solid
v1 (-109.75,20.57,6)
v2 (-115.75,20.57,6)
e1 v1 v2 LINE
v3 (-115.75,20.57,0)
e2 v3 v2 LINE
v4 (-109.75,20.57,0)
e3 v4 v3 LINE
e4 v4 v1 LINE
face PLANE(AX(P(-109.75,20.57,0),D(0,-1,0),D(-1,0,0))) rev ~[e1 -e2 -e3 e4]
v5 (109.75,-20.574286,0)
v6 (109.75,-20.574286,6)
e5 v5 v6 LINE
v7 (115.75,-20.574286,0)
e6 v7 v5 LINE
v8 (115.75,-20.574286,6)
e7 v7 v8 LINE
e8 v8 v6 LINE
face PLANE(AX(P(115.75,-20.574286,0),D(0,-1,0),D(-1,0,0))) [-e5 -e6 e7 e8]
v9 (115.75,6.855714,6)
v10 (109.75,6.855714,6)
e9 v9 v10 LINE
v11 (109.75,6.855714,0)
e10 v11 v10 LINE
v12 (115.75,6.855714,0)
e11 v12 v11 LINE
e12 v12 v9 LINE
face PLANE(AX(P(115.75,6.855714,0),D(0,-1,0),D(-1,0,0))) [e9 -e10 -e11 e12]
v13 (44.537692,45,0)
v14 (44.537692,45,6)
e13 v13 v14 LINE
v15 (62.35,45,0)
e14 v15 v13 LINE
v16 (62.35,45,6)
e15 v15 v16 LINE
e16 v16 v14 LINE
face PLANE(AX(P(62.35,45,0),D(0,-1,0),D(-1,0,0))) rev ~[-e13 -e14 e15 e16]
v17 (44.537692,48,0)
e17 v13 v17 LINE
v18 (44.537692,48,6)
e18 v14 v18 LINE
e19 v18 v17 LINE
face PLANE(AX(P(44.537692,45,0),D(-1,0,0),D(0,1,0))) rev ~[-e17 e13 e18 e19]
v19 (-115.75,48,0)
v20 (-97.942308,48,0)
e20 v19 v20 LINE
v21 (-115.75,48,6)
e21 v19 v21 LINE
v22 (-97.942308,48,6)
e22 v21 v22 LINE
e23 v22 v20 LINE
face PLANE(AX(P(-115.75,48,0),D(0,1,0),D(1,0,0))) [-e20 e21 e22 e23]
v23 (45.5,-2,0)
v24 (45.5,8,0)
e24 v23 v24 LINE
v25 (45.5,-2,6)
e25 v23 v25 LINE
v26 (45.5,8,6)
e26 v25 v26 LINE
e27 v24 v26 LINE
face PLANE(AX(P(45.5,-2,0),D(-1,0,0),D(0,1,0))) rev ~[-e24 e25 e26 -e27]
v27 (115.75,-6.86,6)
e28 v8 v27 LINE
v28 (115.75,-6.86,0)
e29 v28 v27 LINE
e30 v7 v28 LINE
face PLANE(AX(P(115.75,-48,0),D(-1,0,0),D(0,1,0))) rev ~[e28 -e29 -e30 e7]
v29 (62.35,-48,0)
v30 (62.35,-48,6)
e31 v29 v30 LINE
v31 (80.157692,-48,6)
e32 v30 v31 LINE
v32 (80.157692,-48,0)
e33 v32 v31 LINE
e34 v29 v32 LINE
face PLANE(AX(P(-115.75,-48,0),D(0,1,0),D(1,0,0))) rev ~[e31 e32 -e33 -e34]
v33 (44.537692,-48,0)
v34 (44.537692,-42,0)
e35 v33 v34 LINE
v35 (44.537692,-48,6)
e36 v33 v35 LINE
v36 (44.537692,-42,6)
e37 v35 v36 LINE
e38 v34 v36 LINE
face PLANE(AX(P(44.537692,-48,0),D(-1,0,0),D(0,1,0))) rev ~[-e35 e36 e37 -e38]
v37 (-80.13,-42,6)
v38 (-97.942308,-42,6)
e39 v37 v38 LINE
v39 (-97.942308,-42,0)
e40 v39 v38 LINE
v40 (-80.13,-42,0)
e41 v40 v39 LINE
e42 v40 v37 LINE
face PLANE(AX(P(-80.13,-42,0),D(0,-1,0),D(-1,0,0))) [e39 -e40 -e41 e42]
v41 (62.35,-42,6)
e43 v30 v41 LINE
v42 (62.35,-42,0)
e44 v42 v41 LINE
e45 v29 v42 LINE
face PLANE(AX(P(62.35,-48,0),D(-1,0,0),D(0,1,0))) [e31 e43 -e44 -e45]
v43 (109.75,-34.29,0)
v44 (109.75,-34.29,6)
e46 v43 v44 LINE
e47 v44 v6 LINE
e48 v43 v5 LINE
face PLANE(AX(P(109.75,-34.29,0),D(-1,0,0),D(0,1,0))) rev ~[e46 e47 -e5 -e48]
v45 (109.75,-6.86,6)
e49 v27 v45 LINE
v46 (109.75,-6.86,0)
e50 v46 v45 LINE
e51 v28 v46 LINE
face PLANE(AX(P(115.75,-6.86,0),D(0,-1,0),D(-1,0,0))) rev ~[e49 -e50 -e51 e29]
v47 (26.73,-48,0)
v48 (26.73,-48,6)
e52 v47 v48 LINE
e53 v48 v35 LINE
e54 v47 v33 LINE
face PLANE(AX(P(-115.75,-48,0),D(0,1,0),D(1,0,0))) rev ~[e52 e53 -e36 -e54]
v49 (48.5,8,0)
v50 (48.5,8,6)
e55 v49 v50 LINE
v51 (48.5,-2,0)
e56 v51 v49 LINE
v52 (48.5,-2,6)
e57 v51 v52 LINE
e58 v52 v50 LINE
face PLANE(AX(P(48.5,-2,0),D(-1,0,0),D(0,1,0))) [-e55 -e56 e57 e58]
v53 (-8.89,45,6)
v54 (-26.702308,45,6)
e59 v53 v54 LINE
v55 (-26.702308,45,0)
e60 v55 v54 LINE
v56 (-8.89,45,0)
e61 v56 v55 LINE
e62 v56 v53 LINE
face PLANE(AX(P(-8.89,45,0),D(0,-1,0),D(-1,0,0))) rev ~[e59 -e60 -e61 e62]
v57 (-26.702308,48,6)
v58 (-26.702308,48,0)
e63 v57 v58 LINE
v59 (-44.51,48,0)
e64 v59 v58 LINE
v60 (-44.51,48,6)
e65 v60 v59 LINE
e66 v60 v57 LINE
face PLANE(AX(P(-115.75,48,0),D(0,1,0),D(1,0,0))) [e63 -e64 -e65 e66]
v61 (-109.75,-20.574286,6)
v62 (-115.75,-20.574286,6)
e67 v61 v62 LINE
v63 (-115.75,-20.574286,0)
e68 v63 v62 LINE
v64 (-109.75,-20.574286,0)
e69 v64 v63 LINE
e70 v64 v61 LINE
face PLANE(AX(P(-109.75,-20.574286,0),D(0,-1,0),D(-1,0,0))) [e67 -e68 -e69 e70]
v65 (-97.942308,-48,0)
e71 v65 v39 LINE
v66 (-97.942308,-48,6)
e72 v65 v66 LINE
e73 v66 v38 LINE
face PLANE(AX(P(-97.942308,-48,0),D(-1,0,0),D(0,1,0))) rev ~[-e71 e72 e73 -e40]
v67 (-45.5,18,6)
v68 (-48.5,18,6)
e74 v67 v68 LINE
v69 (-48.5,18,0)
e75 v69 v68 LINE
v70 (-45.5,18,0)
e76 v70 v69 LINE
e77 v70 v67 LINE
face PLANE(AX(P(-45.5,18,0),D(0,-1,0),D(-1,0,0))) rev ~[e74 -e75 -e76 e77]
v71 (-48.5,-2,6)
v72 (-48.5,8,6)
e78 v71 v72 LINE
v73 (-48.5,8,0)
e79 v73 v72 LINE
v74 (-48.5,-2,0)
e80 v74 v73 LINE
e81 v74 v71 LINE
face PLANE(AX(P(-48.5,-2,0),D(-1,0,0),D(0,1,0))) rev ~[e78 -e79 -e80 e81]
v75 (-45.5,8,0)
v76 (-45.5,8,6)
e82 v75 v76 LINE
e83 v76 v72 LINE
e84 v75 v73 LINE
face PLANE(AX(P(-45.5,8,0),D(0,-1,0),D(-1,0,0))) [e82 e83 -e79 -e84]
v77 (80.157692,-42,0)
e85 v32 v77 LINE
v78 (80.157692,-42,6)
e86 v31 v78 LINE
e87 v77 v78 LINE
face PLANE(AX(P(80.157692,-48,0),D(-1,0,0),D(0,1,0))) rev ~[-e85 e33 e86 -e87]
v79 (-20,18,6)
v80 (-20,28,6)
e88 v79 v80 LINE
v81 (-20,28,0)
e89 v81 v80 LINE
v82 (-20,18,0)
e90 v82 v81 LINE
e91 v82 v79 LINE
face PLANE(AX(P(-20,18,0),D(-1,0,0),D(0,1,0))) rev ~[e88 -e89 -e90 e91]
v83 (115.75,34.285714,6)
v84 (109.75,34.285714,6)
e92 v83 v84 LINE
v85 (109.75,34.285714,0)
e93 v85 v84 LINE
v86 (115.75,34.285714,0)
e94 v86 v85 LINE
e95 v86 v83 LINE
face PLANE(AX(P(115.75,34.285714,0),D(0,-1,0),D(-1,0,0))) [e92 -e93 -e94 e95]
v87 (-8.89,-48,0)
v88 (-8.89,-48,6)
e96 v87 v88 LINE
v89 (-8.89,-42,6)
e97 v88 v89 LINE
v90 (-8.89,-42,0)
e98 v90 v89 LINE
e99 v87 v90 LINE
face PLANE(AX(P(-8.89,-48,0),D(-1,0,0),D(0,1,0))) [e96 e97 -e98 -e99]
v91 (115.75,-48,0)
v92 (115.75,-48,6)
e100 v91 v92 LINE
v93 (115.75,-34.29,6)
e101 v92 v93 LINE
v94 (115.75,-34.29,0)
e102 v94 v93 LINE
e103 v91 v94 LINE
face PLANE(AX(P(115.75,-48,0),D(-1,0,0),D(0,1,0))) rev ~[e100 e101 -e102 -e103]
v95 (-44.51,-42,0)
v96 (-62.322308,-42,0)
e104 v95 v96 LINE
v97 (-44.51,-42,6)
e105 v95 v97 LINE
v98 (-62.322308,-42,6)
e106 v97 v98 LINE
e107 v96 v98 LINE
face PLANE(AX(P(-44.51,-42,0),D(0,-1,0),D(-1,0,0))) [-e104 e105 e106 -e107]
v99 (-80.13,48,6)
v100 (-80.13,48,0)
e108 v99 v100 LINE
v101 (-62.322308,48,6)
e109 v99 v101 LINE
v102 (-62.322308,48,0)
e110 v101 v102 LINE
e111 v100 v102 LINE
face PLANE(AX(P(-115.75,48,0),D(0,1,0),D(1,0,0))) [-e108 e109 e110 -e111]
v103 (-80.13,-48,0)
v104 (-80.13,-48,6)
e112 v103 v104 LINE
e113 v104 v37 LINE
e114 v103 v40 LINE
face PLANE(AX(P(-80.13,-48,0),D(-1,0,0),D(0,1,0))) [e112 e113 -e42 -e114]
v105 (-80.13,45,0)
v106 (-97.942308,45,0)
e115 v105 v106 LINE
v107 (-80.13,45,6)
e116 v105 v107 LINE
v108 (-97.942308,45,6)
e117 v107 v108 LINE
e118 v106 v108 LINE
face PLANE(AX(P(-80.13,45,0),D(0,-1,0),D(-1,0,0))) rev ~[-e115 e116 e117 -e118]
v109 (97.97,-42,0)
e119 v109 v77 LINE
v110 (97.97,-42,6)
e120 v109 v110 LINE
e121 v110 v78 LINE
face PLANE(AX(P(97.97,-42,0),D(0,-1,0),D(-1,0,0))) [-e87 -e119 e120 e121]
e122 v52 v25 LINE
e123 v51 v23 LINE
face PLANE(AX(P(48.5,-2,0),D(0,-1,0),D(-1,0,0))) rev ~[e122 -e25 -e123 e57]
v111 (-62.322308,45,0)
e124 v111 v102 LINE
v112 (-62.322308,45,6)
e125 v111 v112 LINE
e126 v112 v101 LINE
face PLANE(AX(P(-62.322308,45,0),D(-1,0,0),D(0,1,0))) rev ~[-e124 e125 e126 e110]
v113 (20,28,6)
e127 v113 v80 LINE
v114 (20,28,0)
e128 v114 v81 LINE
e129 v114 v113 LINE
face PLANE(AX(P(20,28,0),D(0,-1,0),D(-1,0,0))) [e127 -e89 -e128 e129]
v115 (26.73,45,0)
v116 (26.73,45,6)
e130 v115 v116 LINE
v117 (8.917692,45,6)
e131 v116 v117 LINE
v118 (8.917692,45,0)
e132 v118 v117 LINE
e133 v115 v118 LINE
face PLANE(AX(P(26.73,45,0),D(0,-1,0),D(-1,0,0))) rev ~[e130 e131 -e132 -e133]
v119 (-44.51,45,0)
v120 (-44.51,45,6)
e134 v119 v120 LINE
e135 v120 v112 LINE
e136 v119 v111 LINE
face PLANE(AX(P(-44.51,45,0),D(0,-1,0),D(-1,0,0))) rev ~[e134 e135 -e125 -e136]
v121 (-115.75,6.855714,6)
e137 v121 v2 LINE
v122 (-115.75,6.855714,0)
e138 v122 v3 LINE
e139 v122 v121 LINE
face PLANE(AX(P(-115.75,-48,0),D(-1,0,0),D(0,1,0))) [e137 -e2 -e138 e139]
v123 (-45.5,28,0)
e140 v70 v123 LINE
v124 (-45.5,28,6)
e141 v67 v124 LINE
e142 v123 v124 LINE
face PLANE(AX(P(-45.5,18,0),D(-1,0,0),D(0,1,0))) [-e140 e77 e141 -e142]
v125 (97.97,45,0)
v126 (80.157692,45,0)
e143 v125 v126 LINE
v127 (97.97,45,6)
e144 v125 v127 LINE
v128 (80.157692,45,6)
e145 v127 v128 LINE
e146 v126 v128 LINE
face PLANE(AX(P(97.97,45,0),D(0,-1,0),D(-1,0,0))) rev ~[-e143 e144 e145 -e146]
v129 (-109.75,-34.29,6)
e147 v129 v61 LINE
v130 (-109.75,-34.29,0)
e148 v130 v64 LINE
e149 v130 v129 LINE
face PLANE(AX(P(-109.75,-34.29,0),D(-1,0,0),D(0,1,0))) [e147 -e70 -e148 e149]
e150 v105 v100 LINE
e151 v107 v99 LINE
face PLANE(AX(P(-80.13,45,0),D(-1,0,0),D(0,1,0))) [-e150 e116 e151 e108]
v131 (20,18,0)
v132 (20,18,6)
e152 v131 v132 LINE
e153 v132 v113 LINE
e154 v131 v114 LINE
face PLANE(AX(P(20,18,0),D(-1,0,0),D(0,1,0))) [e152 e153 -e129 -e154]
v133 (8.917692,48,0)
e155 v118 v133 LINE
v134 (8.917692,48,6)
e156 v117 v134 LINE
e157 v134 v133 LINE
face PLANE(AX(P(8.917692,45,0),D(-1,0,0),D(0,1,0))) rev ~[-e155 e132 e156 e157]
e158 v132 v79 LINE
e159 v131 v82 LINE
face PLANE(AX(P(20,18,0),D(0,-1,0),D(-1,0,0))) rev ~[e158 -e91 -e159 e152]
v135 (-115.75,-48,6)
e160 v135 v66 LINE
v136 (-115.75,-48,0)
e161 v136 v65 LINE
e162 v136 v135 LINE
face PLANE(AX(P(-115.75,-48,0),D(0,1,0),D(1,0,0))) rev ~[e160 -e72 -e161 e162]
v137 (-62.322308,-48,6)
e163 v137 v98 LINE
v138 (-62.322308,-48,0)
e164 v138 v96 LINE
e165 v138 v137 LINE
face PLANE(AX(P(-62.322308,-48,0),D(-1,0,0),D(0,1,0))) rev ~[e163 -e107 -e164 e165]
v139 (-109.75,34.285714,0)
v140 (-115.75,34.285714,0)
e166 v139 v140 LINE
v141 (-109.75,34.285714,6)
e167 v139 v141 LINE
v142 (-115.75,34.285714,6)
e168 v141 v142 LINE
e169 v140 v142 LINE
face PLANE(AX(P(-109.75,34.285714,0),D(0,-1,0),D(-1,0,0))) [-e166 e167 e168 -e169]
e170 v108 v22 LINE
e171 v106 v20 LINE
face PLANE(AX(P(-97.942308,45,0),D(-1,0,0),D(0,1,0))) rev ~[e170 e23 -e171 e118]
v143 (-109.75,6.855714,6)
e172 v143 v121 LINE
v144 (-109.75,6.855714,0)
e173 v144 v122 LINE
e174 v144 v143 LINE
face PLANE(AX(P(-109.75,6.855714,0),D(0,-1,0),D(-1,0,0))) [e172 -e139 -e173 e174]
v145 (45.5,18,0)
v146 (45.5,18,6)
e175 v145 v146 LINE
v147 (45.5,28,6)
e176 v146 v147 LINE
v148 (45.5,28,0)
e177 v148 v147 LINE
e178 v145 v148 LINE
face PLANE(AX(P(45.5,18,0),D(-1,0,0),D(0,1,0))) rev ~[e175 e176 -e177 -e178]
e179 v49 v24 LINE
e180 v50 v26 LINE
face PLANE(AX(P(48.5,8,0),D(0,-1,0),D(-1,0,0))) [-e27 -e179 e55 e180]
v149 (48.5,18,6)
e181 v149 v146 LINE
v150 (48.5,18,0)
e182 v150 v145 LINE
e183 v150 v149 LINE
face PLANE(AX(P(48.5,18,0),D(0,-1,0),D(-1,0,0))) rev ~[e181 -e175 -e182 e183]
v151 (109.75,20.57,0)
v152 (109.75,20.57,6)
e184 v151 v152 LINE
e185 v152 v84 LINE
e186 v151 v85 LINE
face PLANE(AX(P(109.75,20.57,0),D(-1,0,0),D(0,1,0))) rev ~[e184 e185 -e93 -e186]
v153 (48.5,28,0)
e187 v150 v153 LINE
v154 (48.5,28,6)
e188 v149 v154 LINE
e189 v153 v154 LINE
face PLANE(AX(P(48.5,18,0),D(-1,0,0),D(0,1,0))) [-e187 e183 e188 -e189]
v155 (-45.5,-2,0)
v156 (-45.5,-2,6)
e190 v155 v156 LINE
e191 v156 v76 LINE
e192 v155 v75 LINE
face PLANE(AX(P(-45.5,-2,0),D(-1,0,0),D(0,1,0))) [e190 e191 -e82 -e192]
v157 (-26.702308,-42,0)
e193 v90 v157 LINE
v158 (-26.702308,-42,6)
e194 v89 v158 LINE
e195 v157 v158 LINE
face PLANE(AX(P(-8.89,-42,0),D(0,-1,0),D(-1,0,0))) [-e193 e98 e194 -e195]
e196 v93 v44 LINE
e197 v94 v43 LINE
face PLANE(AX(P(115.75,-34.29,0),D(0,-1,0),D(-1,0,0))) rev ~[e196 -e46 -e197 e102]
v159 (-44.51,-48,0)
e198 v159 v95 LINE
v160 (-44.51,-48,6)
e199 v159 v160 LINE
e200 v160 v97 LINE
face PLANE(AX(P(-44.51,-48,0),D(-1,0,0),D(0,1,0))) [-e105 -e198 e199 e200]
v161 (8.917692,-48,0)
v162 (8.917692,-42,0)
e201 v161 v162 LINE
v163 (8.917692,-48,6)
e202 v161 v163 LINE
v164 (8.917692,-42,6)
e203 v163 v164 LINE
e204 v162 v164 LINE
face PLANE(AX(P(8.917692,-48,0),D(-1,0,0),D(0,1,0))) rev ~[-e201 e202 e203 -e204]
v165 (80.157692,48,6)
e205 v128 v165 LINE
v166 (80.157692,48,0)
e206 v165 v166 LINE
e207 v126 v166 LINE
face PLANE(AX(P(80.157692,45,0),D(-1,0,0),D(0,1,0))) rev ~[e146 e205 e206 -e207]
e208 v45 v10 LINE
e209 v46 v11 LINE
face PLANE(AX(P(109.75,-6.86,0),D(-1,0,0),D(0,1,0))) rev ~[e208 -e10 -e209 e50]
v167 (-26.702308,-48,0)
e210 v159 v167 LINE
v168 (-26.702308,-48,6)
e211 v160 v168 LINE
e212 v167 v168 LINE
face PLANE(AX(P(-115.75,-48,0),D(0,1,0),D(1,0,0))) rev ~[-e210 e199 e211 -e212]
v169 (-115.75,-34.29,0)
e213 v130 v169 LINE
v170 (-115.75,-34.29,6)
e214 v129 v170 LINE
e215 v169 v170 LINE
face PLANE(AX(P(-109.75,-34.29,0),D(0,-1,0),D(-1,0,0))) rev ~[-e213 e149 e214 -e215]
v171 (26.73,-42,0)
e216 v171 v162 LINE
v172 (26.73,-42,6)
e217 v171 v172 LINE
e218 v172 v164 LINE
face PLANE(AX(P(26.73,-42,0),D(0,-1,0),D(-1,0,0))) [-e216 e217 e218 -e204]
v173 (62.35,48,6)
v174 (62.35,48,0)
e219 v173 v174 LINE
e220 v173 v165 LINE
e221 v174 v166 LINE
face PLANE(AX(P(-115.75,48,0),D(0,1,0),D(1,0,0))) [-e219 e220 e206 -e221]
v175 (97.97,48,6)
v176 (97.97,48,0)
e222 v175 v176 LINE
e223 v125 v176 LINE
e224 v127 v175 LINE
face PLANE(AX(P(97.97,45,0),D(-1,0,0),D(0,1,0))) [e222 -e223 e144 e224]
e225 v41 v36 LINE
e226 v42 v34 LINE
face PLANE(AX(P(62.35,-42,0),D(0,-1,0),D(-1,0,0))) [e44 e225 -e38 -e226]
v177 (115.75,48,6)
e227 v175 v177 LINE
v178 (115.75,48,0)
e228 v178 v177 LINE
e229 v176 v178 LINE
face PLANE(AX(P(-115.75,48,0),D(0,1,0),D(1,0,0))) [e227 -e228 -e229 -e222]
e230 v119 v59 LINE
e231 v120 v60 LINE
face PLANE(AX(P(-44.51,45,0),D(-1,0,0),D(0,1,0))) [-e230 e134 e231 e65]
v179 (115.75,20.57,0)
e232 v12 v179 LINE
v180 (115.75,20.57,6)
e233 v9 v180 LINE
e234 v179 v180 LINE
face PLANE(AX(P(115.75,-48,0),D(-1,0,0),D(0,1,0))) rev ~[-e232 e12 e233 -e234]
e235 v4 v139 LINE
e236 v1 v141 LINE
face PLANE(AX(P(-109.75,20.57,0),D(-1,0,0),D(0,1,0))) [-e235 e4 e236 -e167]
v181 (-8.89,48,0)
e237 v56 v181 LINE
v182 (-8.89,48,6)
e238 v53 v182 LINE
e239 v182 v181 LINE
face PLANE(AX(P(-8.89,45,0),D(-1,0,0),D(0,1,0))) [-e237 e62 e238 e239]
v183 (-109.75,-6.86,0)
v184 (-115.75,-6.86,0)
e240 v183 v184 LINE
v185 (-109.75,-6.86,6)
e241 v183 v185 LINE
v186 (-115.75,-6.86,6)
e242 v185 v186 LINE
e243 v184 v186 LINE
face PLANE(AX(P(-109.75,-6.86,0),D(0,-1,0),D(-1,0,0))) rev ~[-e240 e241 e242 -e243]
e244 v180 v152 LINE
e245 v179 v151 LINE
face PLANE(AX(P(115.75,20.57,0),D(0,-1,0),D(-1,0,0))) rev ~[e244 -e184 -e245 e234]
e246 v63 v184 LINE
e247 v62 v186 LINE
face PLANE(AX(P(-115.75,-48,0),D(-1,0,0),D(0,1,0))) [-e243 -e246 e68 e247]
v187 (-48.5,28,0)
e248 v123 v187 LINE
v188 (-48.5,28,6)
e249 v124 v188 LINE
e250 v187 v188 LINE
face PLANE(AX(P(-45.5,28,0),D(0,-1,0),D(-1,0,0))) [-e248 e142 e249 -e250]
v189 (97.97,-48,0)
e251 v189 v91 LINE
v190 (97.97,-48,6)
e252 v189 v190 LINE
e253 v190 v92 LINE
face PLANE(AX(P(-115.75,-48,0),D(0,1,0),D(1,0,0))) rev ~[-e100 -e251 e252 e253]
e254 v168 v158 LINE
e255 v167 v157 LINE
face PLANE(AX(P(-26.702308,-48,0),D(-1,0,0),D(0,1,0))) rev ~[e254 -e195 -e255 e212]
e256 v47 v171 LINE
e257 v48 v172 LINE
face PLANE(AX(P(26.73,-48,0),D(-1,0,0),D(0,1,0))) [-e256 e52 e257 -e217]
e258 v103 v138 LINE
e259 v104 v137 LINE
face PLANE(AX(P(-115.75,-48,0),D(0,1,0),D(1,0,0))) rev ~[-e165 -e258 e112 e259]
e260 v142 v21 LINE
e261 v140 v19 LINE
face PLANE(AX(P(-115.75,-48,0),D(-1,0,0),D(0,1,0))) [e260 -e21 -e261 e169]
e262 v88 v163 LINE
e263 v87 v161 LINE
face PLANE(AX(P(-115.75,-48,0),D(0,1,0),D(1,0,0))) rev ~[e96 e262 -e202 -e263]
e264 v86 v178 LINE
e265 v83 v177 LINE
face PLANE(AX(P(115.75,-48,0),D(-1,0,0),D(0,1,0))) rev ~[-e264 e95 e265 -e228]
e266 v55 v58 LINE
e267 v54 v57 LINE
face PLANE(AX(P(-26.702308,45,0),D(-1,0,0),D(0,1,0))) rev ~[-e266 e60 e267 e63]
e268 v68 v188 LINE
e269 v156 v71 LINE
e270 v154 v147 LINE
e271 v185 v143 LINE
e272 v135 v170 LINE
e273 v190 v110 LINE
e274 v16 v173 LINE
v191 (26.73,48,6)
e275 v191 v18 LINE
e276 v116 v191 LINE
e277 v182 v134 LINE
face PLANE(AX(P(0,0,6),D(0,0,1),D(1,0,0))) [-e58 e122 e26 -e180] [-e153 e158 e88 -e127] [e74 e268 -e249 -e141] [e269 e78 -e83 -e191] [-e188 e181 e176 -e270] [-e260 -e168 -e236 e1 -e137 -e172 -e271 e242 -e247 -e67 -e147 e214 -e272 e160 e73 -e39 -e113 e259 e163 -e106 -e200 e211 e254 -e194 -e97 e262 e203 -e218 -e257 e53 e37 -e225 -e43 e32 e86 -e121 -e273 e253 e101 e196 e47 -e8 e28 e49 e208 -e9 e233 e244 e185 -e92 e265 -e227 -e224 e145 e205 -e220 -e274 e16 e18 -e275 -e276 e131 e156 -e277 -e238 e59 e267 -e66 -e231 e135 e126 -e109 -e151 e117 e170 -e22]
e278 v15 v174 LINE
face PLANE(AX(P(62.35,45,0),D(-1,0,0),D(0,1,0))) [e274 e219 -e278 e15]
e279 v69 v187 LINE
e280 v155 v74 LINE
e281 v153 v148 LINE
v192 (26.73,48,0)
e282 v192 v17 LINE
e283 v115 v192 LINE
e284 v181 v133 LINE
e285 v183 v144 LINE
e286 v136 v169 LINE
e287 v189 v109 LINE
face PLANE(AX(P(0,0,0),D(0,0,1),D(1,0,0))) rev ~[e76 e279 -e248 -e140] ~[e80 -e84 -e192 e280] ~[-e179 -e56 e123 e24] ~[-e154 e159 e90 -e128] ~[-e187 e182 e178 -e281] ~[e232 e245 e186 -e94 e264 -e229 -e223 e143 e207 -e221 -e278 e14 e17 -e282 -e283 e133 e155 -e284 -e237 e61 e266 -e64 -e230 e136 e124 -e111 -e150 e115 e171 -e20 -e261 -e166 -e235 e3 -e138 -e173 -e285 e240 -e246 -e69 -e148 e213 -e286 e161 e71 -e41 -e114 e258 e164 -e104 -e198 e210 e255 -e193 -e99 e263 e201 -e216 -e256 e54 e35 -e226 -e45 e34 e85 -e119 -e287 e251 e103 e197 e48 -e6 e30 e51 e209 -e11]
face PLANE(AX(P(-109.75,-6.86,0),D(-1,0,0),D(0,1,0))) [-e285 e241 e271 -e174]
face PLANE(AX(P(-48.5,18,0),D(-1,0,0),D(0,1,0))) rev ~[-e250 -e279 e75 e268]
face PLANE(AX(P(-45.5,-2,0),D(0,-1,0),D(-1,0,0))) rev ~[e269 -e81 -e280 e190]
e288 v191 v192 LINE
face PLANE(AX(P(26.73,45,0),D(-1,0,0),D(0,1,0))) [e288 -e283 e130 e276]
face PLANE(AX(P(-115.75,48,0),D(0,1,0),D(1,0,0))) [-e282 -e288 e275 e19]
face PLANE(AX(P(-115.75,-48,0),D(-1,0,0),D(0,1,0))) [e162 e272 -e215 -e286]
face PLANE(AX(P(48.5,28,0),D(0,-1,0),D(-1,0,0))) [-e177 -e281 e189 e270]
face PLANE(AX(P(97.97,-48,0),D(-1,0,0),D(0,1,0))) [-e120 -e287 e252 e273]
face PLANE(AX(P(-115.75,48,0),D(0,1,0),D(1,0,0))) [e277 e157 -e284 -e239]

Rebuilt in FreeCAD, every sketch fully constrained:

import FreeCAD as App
import Part
import Sketcher

V = App.Vector

doc = App.newDocument("Part")
params = doc.addObject("Spreadsheet::Sheet", "Params")
for row, (alias, value) in enumerate([
    ("sketch1_height", "96 mm"),
    ("sketch1_width", "231.5 mm"),
    ("pad1_length", "6 mm"),
    ("sketch2_height", "6 mm"),
    ("sketch3_height", "6 mm"),
    ("sketch4_height", "6 mm"),
    ("sketch5_height", "6 mm"),
    ("sketch6_height", "6 mm"),
    ("sketch7_height", "6 mm"),
    ("sketch8_height", "6 mm"),
    ("sketch9_height", "6 mm"),
    ("sketch10_height", "6 mm"),
    ("sketch11_height", "6 mm"),
    ("sketch12_height", "6 mm"),
    ("sketch13_height", "6 mm"),
    ("sketch14_width", "6 mm"),
    ("sketch15_width", "6 mm"),
    ("sketch16_width", "6 mm"),
    ("sketch17_width", "6 mm"),
    ("sketch18_width", "6 mm"),
    ("sketch19_width", "6 mm"),
    ("sketch20_width", "40 mm"),
    ("sketch20_height", "10 mm"),
    ("sketch21_width", "3 mm"),
    ("sketch21_height", "10 mm"),
    ("sketch22_width", "3 mm"),
    ("sketch22_height", "10 mm"),
    ("sketch23_width", "3 mm"),
    ("sketch23_height", "10 mm"),
    ("sketch24_width", "3 mm"),
    ("sketch24_height", "10 mm"),
], start=1):
    params.set(f"A{row}", alias)
    params.set(f"B{row}", "=" + value)
    params.setAlias(f"B{row}", alias)

body = doc.addObject("PartDesign::Body", "Body")

sketch1 = body.newObject("Sketcher::SketchObject", "Sketch")
sketch1.AttachmentSupport = (doc.getObject("XY_Plane"), [""])
sketch1.MapMode = "FlatFace"
sketch1.addGeometry([
    Part.LineSegment(V(-115.75, 48, 0), V(-115.75, -48, 0)),
    Part.LineSegment(V(-115.75, -48, 0), V(115.75, -48, 0)),
    Part.LineSegment(V(115.75, -48, 0), V(115.75, 48, 0)),
    Part.LineSegment(V(115.75, 48, 0), V(-115.75, 48, 0)),
], False)
sketch1.addConstraint([
    Sketcher.Constraint("Coincident", 0, 2, 1, 1),
    Sketcher.Constraint("Coincident", 1, 2, 2, 1),
    Sketcher.Constraint("Coincident", 2, 2, 3, 1),
    Sketcher.Constraint("Coincident", 3, 2, 0, 1),
    Sketcher.Constraint("Vertical", 0),
    Sketcher.Constraint("Horizontal", 1),
    Sketcher.Constraint("Vertical", 2),
    Sketcher.Constraint("Horizontal", 3),
    Sketcher.Constraint("Symmetric", 0, 2, 2, 2, -1, 1),
    Sketcher.Constraint("DistanceY", 0, 2, 0, 1, 96.0),
    Sketcher.Constraint("DistanceX", 1, 1, 1, 2, 231.5),
])
sketch1.setExpression("Constraints[9]", "Params.sketch1_height")
sketch1.setExpression("Constraints[10]", "Params.sketch1_width")
pad1 = body.newObject("PartDesign::Pad", "Pad")
pad1.Profile = sketch1
pad1.setExpression("Length", "Params.pad1_length")

sketch2 = body.newObject("Sketcher::SketchObject", "Sketch001")
sketch2.AttachmentSupport = (doc.getObject("XY_Plane"), [""])
sketch2.MapMode = "FlatFace"
sketch2.addGeometry([
    Part.LineSegment(V(-8.89, -42, 0), V(-8.89, -48, 0)),
    Part.LineSegment(V(-8.89, -48, 0), V(-26.702308, -48, 0)),
    Part.LineSegment(V(-26.702308, -48, 0), V(-26.702308, -42, 0)),
    Part.LineSegment(V(-26.702308, -42, 0), V(-8.89, -42, 0)),
], False)
sketch2.addConstraint([
    Sketcher.Constraint("Coincident", 0, 2, 1, 1),
    Sketcher.Constraint("Coincident", 1, 2, 2, 1),
    Sketcher.Constraint("Coincident", 2, 2, 3, 1),
    Sketcher.Constraint("Coincident", 3, 2, 0, 1),
    Sketcher.Constraint("Vertical", 0),
    Sketcher.Constraint("Horizontal", 1),
    Sketcher.Constraint("Vertical", 2),
    Sketcher.Constraint("Horizontal", 3),
    Sketcher.Constraint("DistanceY", 0, 2, 0, 1, 6.0),
    Sketcher.Constraint("DistanceY", 0, 2, -1, 1, 48.0),
    Sketcher.Constraint("DistanceX", 0, 2, -1, 1, 8.89),
    Sketcher.Constraint("DistanceX", 1, 2, 1, 1, 17.812308),
])
sketch2.setExpression("Constraints[8]", "Params.sketch2_height")
pocket1 = body.newObject("PartDesign::Pocket", "Pocket")
pocket1.Profile = sketch2
pocket1.Type = "UpToFirst"
pocket1.Reversed = True

sketch3 = body.newObject("Sketcher::SketchObject", "Sketch002")
sketch3.AttachmentSupport = (doc.getObject("XY_Plane"), [""])
sketch3.MapMode = "FlatFace"
sketch3.addGeometry([
    Part.LineSegment(V(-44.51, -42, 0), V(-44.51, -48, 0)),
    Part.LineSegment(V(-44.51, -48, 0), V(-62.322308, -48, 0)),
    Part.LineSegment(V(-62.322308, -48, 0), V(-62.322308, -42, 0)),
    Part.LineSegment(V(-62.322308, -42, 0), V(-44.51, -42, 0)),
], False)
sketch3.addConstraint([
    Sketcher.Constraint("Coincident", 0, 2, 1, 1),
    Sketcher.Constraint("Coincident", 1, 2, 2, 1),
    Sketcher.Constraint("Coincident", 2, 2, 3, 1),
    Sketcher.Constraint("Coincident", 3, 2, 0, 1),
    Sketcher.Constraint("Vertical", 0),
    Sketcher.Constraint("Horizontal", 1),
    Sketcher.Constraint("Vertical", 2),
    Sketcher.Constraint("Horizontal", 3),
    Sketcher.Constraint("DistanceY", 0, 2, 0, 1, 6.0),
    Sketcher.Constraint("DistanceY", 0, 2, -1, 1, 48.0),
    Sketcher.Constraint("DistanceX", 0, 2, -1, 1, 44.51),
    Sketcher.Constraint("DistanceX", 1, 2, 1, 1, 17.812308),
])
sketch3.setExpression("Constraints[8]", "Params.sketch3_height")
pocket2 = body.newObject("PartDesign::Pocket", "Pocket001")
pocket2.Profile = sketch3
pocket2.Type = "UpToFirst"
pocket2.Reversed = True

sketch4 = body.newObject("Sketcher::SketchObject", "Sketch003")
sketch4.AttachmentSupport = (doc.getObject("XY_Plane"), [""])
sketch4.MapMode = "FlatFace"
sketch4.addGeometry([
    Part.LineSegment(V(-80.13, -42, 0), V(-80.13, -48, 0)),
    Part.LineSegment(V(-80.13, -48, 0), V(-97.942308, -48, 0)),
    Part.LineSegment(V(-97.942308, -48, 0), V(-97.942308, -42, 0)),
    Part.LineSegment(V(-97.942308, -42, 0), V(-80.13, -42, 0)),
], False)
sketch4.addConstraint([
    Sketcher.Constraint("Coincident", 0, 2, 1, 1),
    Sketcher.Constraint("Coincident", 1, 2, 2, 1),
    Sketcher.Constraint("Coincident", 2, 2, 3, 1),
    Sketcher.Constraint("Coincident", 3, 2, 0, 1),
    Sketcher.Constraint("Vertical", 0),
    Sketcher.Constraint("Horizontal", 1),
    Sketcher.Constraint("Vertical", 2),
    Sketcher.Constraint("Horizontal", 3),
    Sketcher.Constraint("DistanceY", 0, 2, 0, 1, 6.0),
    Sketcher.Constraint("DistanceY", 0, 2, -1, 1, 48.0),
    Sketcher.Constraint("DistanceX", 0, 2, -1, 1, 80.13),
    Sketcher.Constraint("DistanceX", 1, 2, 1, 1, 17.812308),
])
sketch4.setExpression("Constraints[8]", "Params.sketch4_height")
pocket3 = body.newObject("PartDesign::Pocket", "Pocket002")
pocket3.Profile = sketch4
pocket3.Type = "UpToFirst"
pocket3.Reversed = True

sketch5 = body.newObject("Sketcher::SketchObject", "Sketch004")
sketch5.AttachmentSupport = (doc.getObject("XY_Plane"), [""])
sketch5.MapMode = "FlatFace"
sketch5.addGeometry([
    Part.LineSegment(V(26.73, -42, 0), V(26.73, -48, 0)),
    Part.LineSegment(V(26.73, -48, 0), V(8.917692, -48, 0)),
    Part.LineSegment(V(8.917692, -48, 0), V(8.917692, -42, 0)),
    Part.LineSegment(V(8.917692, -42, 0), V(26.73, -42, 0)),
], False)
sketch5.addConstraint([
    Sketcher.Constraint("Coincident", 0, 2, 1, 1),
    Sketcher.Constraint("Coincident", 1, 2, 2, 1),
    Sketcher.Constraint("Coincident", 2, 2, 3, 1),
    Sketcher.Constraint("Coincident", 3, 2, 0, 1),
    Sketcher.Constraint("Vertical", 0),
    Sketcher.Constraint("Horizontal", 1),
    Sketcher.Constraint("Vertical", 2),
    Sketcher.Constraint("Horizontal", 3),
    Sketcher.Constraint("DistanceY", 0, 2, 0, 1, 6.0),
    Sketcher.Constraint("DistanceY", 0, 2, -1, 1, 48.0),
    Sketcher.Constraint("DistanceX", -1, 1, 0, 2, 26.73),
    Sketcher.Constraint("DistanceX", 1, 2, 1, 1, 17.812308),
])
sketch5.setExpression("Constraints[8]", "Params.sketch5_height")
pocket4 = body.newObject("PartDesign::Pocket", "Pocket003")
pocket4.Profile = sketch5
pocket4.Type = "UpToFirst"
pocket4.Reversed = True

sketch6 = body.newObject("Sketcher::SketchObject", "Sketch005")
sketch6.AttachmentSupport = (doc.getObject("XY_Plane"), [""])
sketch6.MapMode = "FlatFace"
sketch6.addGeometry([
    Part.LineSegment(V(62.35, -42, 0), V(62.35, -48, 0)),
    Part.LineSegment(V(62.35, -48, 0), V(44.537692, -48, 0)),
    Part.LineSegment(V(44.537692, -48, 0), V(44.537692, -42, 0)),
    Part.LineSegment(V(44.537692, -42, 0), V(62.35, -42, 0)),
], False)
sketch6.addConstraint([
    Sketcher.Constraint("Coincident", 0, 2, 1, 1),
    Sketcher.Constraint("Coincident", 1, 2, 2, 1),
    Sketcher.Constraint("Coincident", 2, 2, 3, 1),
    Sketcher.Constraint("Coincident", 3, 2, 0, 1),
    Sketcher.Constraint("Vertical", 0),
    Sketcher.Constraint("Horizontal", 1),
    Sketcher.Constraint("Vertical", 2),
    Sketcher.Constraint("Horizontal", 3),
    Sketcher.Constraint("DistanceY", 0, 2, 0, 1, 6.0),
    Sketcher.Constraint("DistanceY", 0, 2, -1, 1, 48.0),
    Sketcher.Constraint("DistanceX", -1, 1, 0, 2, 62.35),
    Sketcher.Constraint("DistanceX", 1, 2, 1, 1, 17.812308),
])
sketch6.setExpression("Constraints[8]", "Params.sketch6_height")
pocket5 = body.newObject("PartDesign::Pocket", "Pocket004")
pocket5.Profile = sketch6
pocket5.Type = "UpToFirst"
pocket5.Reversed = True

sketch7 = body.newObject("Sketcher::SketchObject", "Sketch006")
sketch7.AttachmentSupport = (doc.getObject("XY_Plane"), [""])
sketch7.MapMode = "FlatFace"
sketch7.addGeometry([
    Part.LineSegment(V(97.97, -42, 0), V(97.97, -48, 0)),
    Part.LineSegment(V(97.97, -48, 0), V(80.157692, -48, 0)),
    Part.LineSegment(V(80.157692, -48, 0), V(80.157692, -42, 0)),
    Part.LineSegment(V(80.157692, -42, 0), V(97.97, -42, 0)),
], False)
sketch7.addConstraint([
    Sketcher.Constraint("Coincident", 0, 2, 1, 1),
    Sketcher.Constraint("Coincident", 1, 2, 2, 1),
    Sketcher.Constraint("Coincident", 2, 2, 3, 1),
    Sketcher.Constraint("Coincident", 3, 2, 0, 1),
    Sketcher.Constraint("Vertical", 0),
    Sketcher.Constraint("Horizontal", 1),
    Sketcher.Constraint("Vertical", 2),
    Sketcher.Constraint("Horizontal", 3),
    Sketcher.Constraint("DistanceY", 0, 2, 0, 1, 6.0),
    Sketcher.Constraint("DistanceY", 0, 2, -1, 1, 48.0),
    Sketcher.Constraint("DistanceX", -1, 1, 0, 2, 97.97),
    Sketcher.Constraint("DistanceX", 1, 2, 1, 1, 17.812308),
])
sketch7.setExpression("Constraints[8]", "Params.sketch7_height")
pocket6 = body.newObject("PartDesign::Pocket", "Pocket005")
pocket6.Profile = sketch7
pocket6.Type = "UpToFirst"
pocket6.Reversed = True

sketch8 = body.newObject("Sketcher::SketchObject", "Sketch007")
sketch8.AttachmentSupport = (doc.getObject("XY_Plane"), [""])
sketch8.MapMode = "FlatFace"
sketch8.addGeometry([
    Part.LineSegment(V(97.97, 51, 0), V(97.97, 45, 0)),
    Part.LineSegment(V(97.97, 45, 0), V(80.157692, 45, 0)),
    Part.LineSegment(V(80.157692, 45, 0), V(80.157692, 51, 0)),
    Part.LineSegment(V(80.157692, 51, 0), V(97.97, 51, 0)),
], False)
sketch8.addConstraint([
    Sketcher.Constraint("Coincident", 0, 2, 1, 1),
    Sketcher.Constraint("Coincident", 1, 2, 2, 1),
    Sketcher.Constraint("Coincident", 2, 2, 3, 1),
    Sketcher.Constraint("Coincident", 3, 2, 0, 1),
    Sketcher.Constraint("Vertical", 0),
    Sketcher.Constraint("Horizontal", 1),
    Sketcher.Constraint("Vertical", 2),
    Sketcher.Constraint("Horizontal", 3),
    Sketcher.Constraint("DistanceY", 0, 2, 0, 1, 6.0),
    Sketcher.Constraint("DistanceY", -1, 1, 0, 2, 45.0),
    Sketcher.Constraint("DistanceX", -1, 1, 0, 2, 97.97),
    Sketcher.Constraint("DistanceX", 1, 2, 1, 1, 17.812308),
])
sketch8.setExpression("Constraints[8]", "Params.sketch8_height")
pocket7 = body.newObject("PartDesign::Pocket", "Pocket006")
pocket7.Profile = sketch8
pocket7.Type = "UpToFirst"
pocket7.Reversed = True

sketch9 = body.newObject("Sketcher::SketchObject", "Sketch008")
sketch9.AttachmentSupport = (doc.getObject("XY_Plane"), [""])
sketch9.MapMode = "FlatFace"
sketch9.addGeometry([
    Part.LineSegment(V(62.35, 51, 0), V(62.35, 45, 0)),
    Part.LineSegment(V(62.35, 45, 0), V(44.537692, 45, 0)),
    Part.LineSegment(V(44.537692, 45, 0), V(44.537692, 51, 0)),
    Part.LineSegment(V(44.537692, 51, 0), V(62.35, 51, 0)),
], False)
sketch9.addConstraint([
    Sketcher.Constraint("Coincident", 0, 2, 1, 1),
    Sketcher.Constraint("Coincident", 1, 2, 2, 1),
    Sketcher.Constraint("Coincident", 2, 2, 3, 1),
    Sketcher.Constraint("Coincident", 3, 2, 0, 1),
    Sketcher.Constraint("Vertical", 0),
    Sketcher.Constraint("Horizontal", 1),
    Sketcher.Constraint("Vertical", 2),
    Sketcher.Constraint("Horizontal", 3),
    Sketcher.Constraint("DistanceY", 0, 2, 0, 1, 6.0),
    Sketcher.Constraint("DistanceY", -1, 1, 0, 2, 45.0),
    Sketcher.Constraint("DistanceX", -1, 1, 0, 2, 62.35),
    Sketcher.Constraint("DistanceX", 1, 2, 1, 1, 17.812308),
])
sketch9.setExpression("Constraints[8]", "Params.sketch9_height")
pocket8 = body.newObject("PartDesign::Pocket", "Pocket007")
pocket8.Profile = sketch9
pocket8.Type = "UpToFirst"
pocket8.Reversed = True

sketch10 = body.newObject("Sketcher::SketchObject", "Sketch009")
sketch10.AttachmentSupport = (doc.getObject("XY_Plane"), [""])
sketch10.MapMode = "FlatFace"
sketch10.addGeometry([
    Part.LineSegment(V(26.73, 51, 0), V(26.73, 45, 0)),
    Part.LineSegment(V(26.73, 45, 0), V(8.917692, 45, 0)),
    Part.LineSegment(V(8.917692, 45, 0), V(8.917692, 51, 0)),
    Part.LineSegment(V(8.917692, 51, 0), V(26.73, 51, 0)),
], False)
sketch10.addConstraint([
    Sketcher.Constraint("Coincident", 0, 2, 1, 1),
    Sketcher.Constraint("Coincident", 1, 2, 2, 1),
    Sketcher.Constraint("Coincident", 2, 2, 3, 1),
    Sketcher.Constraint("Coincident", 3, 2, 0, 1),
    Sketcher.Constraint("Vertical", 0),
    Sketcher.Constraint("Horizontal", 1),
    Sketcher.Constraint("Vertical", 2),
    Sketcher.Constraint("Horizontal", 3),
    Sketcher.Constraint("DistanceY", 0, 2, 0, 1, 6.0),
    Sketcher.Constraint("DistanceY", -1, 1, 0, 2, 45.0),
    Sketcher.Constraint("DistanceX", -1, 1, 0, 2, 26.73),
    Sketcher.Constraint("DistanceX", 1, 2, 1, 1, 17.812308),
])
sketch10.setExpression("Constraints[8]", "Params.sketch10_height")
pocket9 = body.newObject("PartDesign::Pocket", "Pocket008")
pocket9.Profile = sketch10
pocket9.Type = "UpToFirst"
pocket9.Reversed = True

sketch11 = body.newObject("Sketcher::SketchObject", "Sketch010")
sketch11.AttachmentSupport = (doc.getObject("XY_Plane"), [""])
sketch11.MapMode = "FlatFace"
sketch11.addGeometry([
    Part.LineSegment(V(-8.89, 51, 0), V(-8.89, 45, 0)),
    Part.LineSegment(V(-8.89, 45, 0), V(-26.702308, 45, 0)),
    Part.LineSegment(V(-26.702308, 45, 0), V(-26.702308, 51, 0)),
    Part.LineSegment(V(-26.702308, 51, 0), V(-8.89, 51, 0)),
], False)
sketch11.addConstraint([
    Sketcher.Constraint("Coincident", 0, 2, 1, 1),
    Sketcher.Constraint("Coincident", 1, 2, 2, 1),
    Sketcher.Constraint("Coincident", 2, 2, 3, 1),
    Sketcher.Constraint("Coincident", 3, 2, 0, 1),
    Sketcher.Constraint("Vertical", 0),
    Sketcher.Constraint("Horizontal", 1),
    Sketcher.Constraint("Vertical", 2),
    Sketcher.Constraint("Horizontal", 3),
    Sketcher.Constraint("DistanceY", 0, 2, 0, 1, 6.0),
    Sketcher.Constraint("DistanceY", -1, 1, 0, 2, 45.0),
    Sketcher.Constraint("DistanceX", 0, 2, -1, 1, 8.89),
    Sketcher.Constraint("DistanceX", 1, 2, 1, 1, 17.812308),
])
sketch11.setExpression("Constraints[8]", "Params.sketch11_height")
pocket10 = body.newObject("PartDesign::Pocket", "Pocket009")
pocket10.Profile = sketch11
pocket10.Type = "UpToFirst"
pocket10.Reversed = True

sketch12 = body.newObject("Sketcher::SketchObject", "Sketch011")
sketch12.AttachmentSupport = (doc.getObject("XY_Plane"), [""])
sketch12.MapMode = "FlatFace"
sketch12.addGeometry([
    Part.LineSegment(V(-80.13, 51, 0), V(-80.13, 45, 0)),
    Part.LineSegment(V(-80.13, 45, 0), V(-97.942308, 45, 0)),
    Part.LineSegment(V(-97.942308, 45, 0), V(-97.942308, 51, 0)),
    Part.LineSegment(V(-97.942308, 51, 0), V(-80.13, 51, 0)),
], False)
sketch12.addConstraint([
    Sketcher.Constraint("Coincident", 0, 2, 1, 1),
    Sketcher.Constraint("Coincident", 1, 2, 2, 1),
    Sketcher.Constraint("Coincident", 2, 2, 3, 1),
    Sketcher.Constraint("Coincident", 3, 2, 0, 1),
    Sketcher.Constraint("Vertical", 0),
    Sketcher.Constraint("Horizontal", 1),
    Sketcher.Constraint("Vertical", 2),
    Sketcher.Constraint("Horizontal", 3),
    Sketcher.Constraint("DistanceY", 0, 2, 0, 1, 6.0),
    Sketcher.Constraint("DistanceY", -1, 1, 0, 2, 45.0),
    Sketcher.Constraint("DistanceX", 0, 2, -1, 1, 80.13),
    Sketcher.Constraint("DistanceX", 1, 2, 1, 1, 17.812308),
])
sketch12.setExpression("Constraints[8]", "Params.sketch12_height")
pocket11 = body.newObject("PartDesign::Pocket", "Pocket010")
pocket11.Profile = sketch12
pocket11.Type = "UpToFirst"
pocket11.Reversed = True

sketch13 = body.newObject("Sketcher::SketchObject", "Sketch012")
sketch13.AttachmentSupport = (doc.getObject("XY_Plane"), [""])
sketch13.MapMode = "FlatFace"
sketch13.addGeometry([
    Part.LineSegment(V(-44.51, 51, 0), V(-44.51, 45, 0)),
    Part.LineSegment(V(-44.51, 45, 0), V(-62.322308, 45, 0)),
    Part.LineSegment(V(-62.322308, 45, 0), V(-62.322308, 51, 0)),
    Part.LineSegment(V(-62.322308, 51, 0), V(-44.51, 51, 0)),
], False)
sketch13.addConstraint([
    Sketcher.Constraint("Coincident", 0, 2, 1, 1),
    Sketcher.Constraint("Coincident", 1, 2, 2, 1),
    Sketcher.Constraint("Coincident", 2, 2, 3, 1),
    Sketcher.Constraint("Coincident", 3, 2, 0, 1),
    Sketcher.Constraint("Vertical", 0),
    Sketcher.Constraint("Horizontal", 1),
    Sketcher.Constraint("Vertical", 2),
    Sketcher.Constraint("Horizontal", 3),
    Sketcher.Constraint("DistanceY", 0, 2, 0, 1, 6.0),
    Sketcher.Constraint("DistanceY", -1, 1, 0, 2, 45.0),
    Sketcher.Constraint("DistanceX", 0, 2, -1, 1, 44.51),
    Sketcher.Constraint("DistanceX", 1, 2, 1, 1, 17.812308),
])
sketch13.setExpression("Constraints[8]", "Params.sketch13_height")
pocket12 = body.newObject("PartDesign::Pocket", "Pocket011")
pocket12.Profile = sketch13
pocket12.Type = "UpToFirst"
pocket12.Reversed = True

sketch14 = body.newObject("Sketcher::SketchObject", "Sketch013")
sketch14.AttachmentSupport = (doc.getObject("XY_Plane"), [""])
sketch14.MapMode = "FlatFace"
sketch14.addGeometry([
    Part.LineSegment(V(-109.75, 6.855714, 0), V(-109.75, -6.86, 0)),
    Part.LineSegment(V(-109.75, -6.86, 0), V(-115.75, -6.86, 0)),
    Part.LineSegment(V(-115.75, -6.86, 0), V(-115.75, 6.855714, 0)),
    Part.LineSegment(V(-115.75, 6.855714, 0), V(-109.75, 6.855714, 0)),
], False)
sketch14.addConstraint([
    Sketcher.Constraint("Coincident", 0, 2, 1, 1),
    Sketcher.Constraint("Coincident", 1, 2, 2, 1),
    Sketcher.Constraint("Coincident", 2, 2, 3, 1),
    Sketcher.Constraint("Coincident", 3, 2, 0, 1),
    Sketcher.Constraint("Vertical", 0),
    Sketcher.Constraint("Horizontal", 1),
    Sketcher.Constraint("Vertical", 2),
    Sketcher.Constraint("Horizontal", 3),
    Sketcher.Constraint("DistanceX", 1, 2, 1, 1, 6.0),
    Sketcher.Constraint("DistanceX", 0, 2, -1, 1, 109.75),
    Sketcher.Constraint("DistanceY", 0, 2, -1, 1, 6.86),
    Sketcher.Constraint("DistanceY", 0, 2, 0, 1, 13.715714),
])
sketch14.setExpression("Constraints[8]", "Params.sketch14_width")
pocket13 = body.newObject("PartDesign::Pocket", "Pocket012")
pocket13.Profile = sketch14
pocket13.Type = "UpToFirst"
pocket13.Reversed = True

sketch15 = body.newObject("Sketcher::SketchObject", "Sketch014")
sketch15.AttachmentSupport = (doc.getObject("XY_Plane"), [""])
sketch15.MapMode = "FlatFace"
sketch15.addGeometry([
    Part.LineSegment(V(-109.75, 34.285714, 0), V(-109.75, 20.57, 0)),
    Part.LineSegment(V(-109.75, 20.57, 0), V(-115.75, 20.57, 0)),
    Part.LineSegment(V(-115.75, 20.57, 0), V(-115.75, 34.285714, 0)),
    Part.LineSegment(V(-115.75, 34.285714, 0), V(-109.75, 34.285714, 0)),
], False)
sketch15.addConstraint([
    Sketcher.Constraint("Coincident", 0, 2, 1, 1),
    Sketcher.Constraint("Coincident", 1, 2, 2, 1),
    Sketcher.Constraint("Coincident", 2, 2, 3, 1),
    Sketcher.Constraint("Coincident", 3, 2, 0, 1),
    Sketcher.Constraint("Vertical", 0),
    Sketcher.Constraint("Horizontal", 1),
    Sketcher.Constraint("Vertical", 2),
    Sketcher.Constraint("Horizontal", 3),
    Sketcher.Constraint("DistanceX", 1, 2, 1, 1, 6.0),
    Sketcher.Constraint("DistanceX", 0, 2, -1, 1, 109.75),
    Sketcher.Constraint("DistanceY", -1, 1, 0, 2, 20.57),
    Sketcher.Constraint("DistanceY", 0, 2, 0, 1, 13.715714),
])
sketch15.setExpression("Constraints[8]", "Params.sketch15_width")
pocket14 = body.newObject("PartDesign::Pocket", "Pocket013")
pocket14.Profile = sketch15
pocket14.Type = "UpToFirst"
pocket14.Reversed = True

sketch16 = body.newObject("Sketcher::SketchObject", "Sketch015")
sketch16.AttachmentSupport = (doc.getObject("XY_Plane"), [""])
sketch16.MapMode = "FlatFace"
sketch16.addGeometry([
    Part.LineSegment(V(115.75, 34.285714, 0), V(115.75, 20.57, 0)),
    Part.LineSegment(V(115.75, 20.57, 0), V(109.75, 20.57, 0)),
    Part.LineSegment(V(109.75, 20.57, 0), V(109.75, 34.285714, 0)),
    Part.LineSegment(V(109.75, 34.285714, 0), V(115.75, 34.285714, 0)),
], False)
sketch16.addConstraint([
    Sketcher.Constraint("Coincident", 0, 2, 1, 1),
    Sketcher.Constraint("Coincident", 1, 2, 2, 1),
    Sketcher.Constraint("Coincident", 2, 2, 3, 1),
    Sketcher.Constraint("Coincident", 3, 2, 0, 1),
    Sketcher.Constraint("Vertical", 0),
    Sketcher.Constraint("Horizontal", 1),
    Sketcher.Constraint("Vertical", 2),
    Sketcher.Constraint("Horizontal", 3),
    Sketcher.Constraint("DistanceX", 1, 2, 1, 1, 6.0),
    Sketcher.Constraint("DistanceX", -1, 1, 0, 2, 115.75),
    Sketcher.Constraint("DistanceY", -1, 1, 0, 2, 20.57),
    Sketcher.Constraint("DistanceY", 0, 2, 0, 1, 13.715714),
])
sketch16.setExpression("Constraints[8]", "Params.sketch16_width")
pocket15 = body.newObject("PartDesign::Pocket", "Pocket014")
pocket15.Profile = sketch16
pocket15.Type = "UpToFirst"
pocket15.Reversed = True

sketch17 = body.newObject("Sketcher::SketchObject", "Sketch016")
sketch17.AttachmentSupport = (doc.getObject("XY_Plane"), [""])
sketch17.MapMode = "FlatFace"
sketch17.addGeometry([
    Part.LineSegment(V(115.75, 6.855714, 0), V(115.75, -6.86, 0)),
    Part.LineSegment(V(115.75, -6.86, 0), V(109.75, -6.86, 0)),
    Part.LineSegment(V(109.75, -6.86, 0), V(109.75, 6.855714, 0)),
    Part.LineSegment(V(109.75, 6.855714, 0), V(115.75, 6.855714, 0)),
], False)
sketch17.addConstraint([
    Sketcher.Constraint("Coincident", 0, 2, 1, 1),
    Sketcher.Constraint("Coincident", 1, 2, 2, 1),
    Sketcher.Constraint("Coincident", 2, 2, 3, 1),
    Sketcher.Constraint("Coincident", 3, 2, 0, 1),
    Sketcher.Constraint("Vertical", 0),
    Sketcher.Constraint("Horizontal", 1),
    Sketcher.Constraint("Vertical", 2),
    Sketcher.Constraint("Horizontal", 3),
    Sketcher.Constraint("DistanceX", 1, 2, 1, 1, 6.0),
    Sketcher.Constraint("DistanceX", -1, 1, 0, 2, 115.75),
    Sketcher.Constraint("DistanceY", 0, 2, -1, 1, 6.86),
    Sketcher.Constraint("DistanceY", 0, 2, 0, 1, 13.715714),
])
sketch17.setExpression("Constraints[8]", "Params.sketch17_width")
pocket16 = body.newObject("PartDesign::Pocket", "Pocket015")
pocket16.Profile = sketch17
pocket16.Type = "UpToFirst"
pocket16.Reversed = True

sketch18 = body.newObject("Sketcher::SketchObject", "Sketch017")
sketch18.AttachmentSupport = (doc.getObject("XY_Plane"), [""])
sketch18.MapMode = "FlatFace"
sketch18.addGeometry([
    Part.LineSegment(V(115.75, -20.574286, 0), V(115.75, -34.29, 0)),
    Part.LineSegment(V(115.75, -34.29, 0), V(109.75, -34.29, 0)),
    Part.LineSegment(V(109.75, -34.29, 0), V(109.75, -20.574286, 0)),
    Part.LineSegment(V(109.75, -20.574286, 0), V(115.75, -20.574286, 0)),
], False)
sketch18.addConstraint([
    Sketcher.Constraint("Coincident", 0, 2, 1, 1),
    Sketcher.Constraint("Coincident", 1, 2, 2, 1),
    Sketcher.Constraint("Coincident", 2, 2, 3, 1),
    Sketcher.Constraint("Coincident", 3, 2, 0, 1),
    Sketcher.Constraint("Vertical", 0),
    Sketcher.Constraint("Horizontal", 1),
    Sketcher.Constraint("Vertical", 2),
    Sketcher.Constraint("Horizontal", 3),
    Sketcher.Constraint("DistanceX", 1, 2, 1, 1, 6.0),
    Sketcher.Constraint("DistanceX", -1, 1, 0, 2, 115.75),
    Sketcher.Constraint("DistanceY", 0, 2, -1, 1, 34.29),
    Sketcher.Constraint("DistanceY", 0, 2, 0, 1, 13.715714),
])
sketch18.setExpression("Constraints[8]", "Params.sketch18_width")
pocket17 = body.newObject("PartDesign::Pocket", "Pocket016")
pocket17.Profile = sketch18
pocket17.Type = "UpToFirst"
pocket17.Reversed = True

sketch19 = body.newObject("Sketcher::SketchObject", "Sketch018")
sketch19.AttachmentSupport = (doc.getObject("XY_Plane"), [""])
sketch19.MapMode = "FlatFace"
sketch19.addGeometry([
    Part.LineSegment(V(-109.75, -20.574286, 0), V(-109.75, -34.29, 0)),
    Part.LineSegment(V(-109.75, -34.29, 0), V(-115.75, -34.29, 0)),
    Part.LineSegment(V(-115.75, -34.29, 0), V(-115.75, -20.574286, 0)),
    Part.LineSegment(V(-115.75, -20.574286, 0), V(-109.75, -20.574286, 0)),
], False)
sketch19.addConstraint([
    Sketcher.Constraint("Coincident", 0, 2, 1, 1),
    Sketcher.Constraint("Coincident", 1, 2, 2, 1),
    Sketcher.Constraint("Coincident", 2, 2, 3, 1),
    Sketcher.Constraint("Coincident", 3, 2, 0, 1),
    Sketcher.Constraint("Vertical", 0),
    Sketcher.Constraint("Horizontal", 1),
    Sketcher.Constraint("Vertical", 2),
    Sketcher.Constraint("Horizontal", 3),
    Sketcher.Constraint("DistanceX", 1, 2, 1, 1, 6.0),
    Sketcher.Constraint("DistanceX", 0, 2, -1, 1, 109.75),
    Sketcher.Constraint("DistanceY", 0, 2, -1, 1, 34.29),
    Sketcher.Constraint("DistanceY", 0, 2, 0, 1, 13.715714),
])
sketch19.setExpression("Constraints[8]", "Params.sketch19_width")
pocket18 = body.newObject("PartDesign::Pocket", "Pocket017")
pocket18.Profile = sketch19
pocket18.Type = "UpToFirst"
pocket18.Reversed = True

sketch20 = body.newObject("Sketcher::SketchObject", "Sketch019")
sketch20.AttachmentSupport = (doc.getObject("XY_Plane"), [""])
sketch20.MapMode = "FlatFace"
sketch20.addGeometry([
    Part.LineSegment(V(20, 28, 0), V(20, 18, 0)),
    Part.LineSegment(V(20, 18, 0), V(-20, 18, 0)),
    Part.LineSegment(V(-20, 18, 0), V(-20, 28, 0)),
    Part.LineSegment(V(-20, 28, 0), V(20, 28, 0)),
], False)
sketch20.addConstraint([
    Sketcher.Constraint("Coincident", 0, 2, 1, 1),
    Sketcher.Constraint("Coincident", 1, 2, 2, 1),
    Sketcher.Constraint("Coincident", 2, 2, 3, 1),
    Sketcher.Constraint("Coincident", 3, 2, 0, 1),
    Sketcher.Constraint("Vertical", 0),
    Sketcher.Constraint("Horizontal", 1),
    Sketcher.Constraint("Vertical", 2),
    Sketcher.Constraint("Horizontal", 3),
    Sketcher.Constraint("DistanceX", 1, 2, 1, 1, 40.0),
    Sketcher.Constraint("DistanceY", 0, 2, 0, 1, 10.0),
    Sketcher.Constraint("DistanceX", -1, 1, 0, 2, 20.0),
    Sketcher.Constraint("DistanceY", -1, 1, 0, 2, 18.0),
])
sketch20.setExpression("Constraints[8]", "Params.sketch20_width")
sketch20.setExpression("Constraints[9]", "Params.sketch20_height")
pocket19 = body.newObject("PartDesign::Pocket", "Pocket018")
pocket19.Profile = sketch20
pocket19.Type = "UpToFirst"
pocket19.Reversed = True

sketch21 = body.newObject("Sketcher::SketchObject", "Sketch020")
sketch21.AttachmentSupport = (doc.getObject("XY_Plane"), [""])
sketch21.MapMode = "FlatFace"
sketch21.addGeometry([
    Part.LineSegment(V(-45.5, 28, 0), V(-45.5, 18, 0)),
    Part.LineSegment(V(-45.5, 18, 0), V(-48.5, 18, 0)),
    Part.LineSegment(V(-48.5, 18, 0), V(-48.5, 28, 0)),
    Part.LineSegment(V(-48.5, 28, 0), V(-45.5, 28, 0)),
], False)
sketch21.addConstraint([
    Sketcher.Constraint("Coincident", 0, 2, 1, 1),
    Sketcher.Constraint("Coincident", 1, 2, 2, 1),
    Sketcher.Constraint("Coincident", 2, 2, 3, 1),
    Sketcher.Constraint("Coincident", 3, 2, 0, 1),
    Sketcher.Constraint("Vertical", 0),
    Sketcher.Constraint("Horizontal", 1),
    Sketcher.Constraint("Vertical", 2),
    Sketcher.Constraint("Horizontal", 3),
    Sketcher.Constraint("DistanceX", 1, 2, 1, 1, 3.0),
    Sketcher.Constraint("DistanceY", 0, 2, 0, 1, 10.0),
    Sketcher.Constraint("DistanceY", -1, 1, 0, 2, 18.0),
    Sketcher.Constraint("DistanceX", 0, 2, -1, 1, 45.5),
])
sketch21.setExpression("Constraints[8]", "Params.sketch21_width")
sketch21.setExpression("Constraints[9]", "Params.sketch21_height")
pocket20 = body.newObject("PartDesign::Pocket", "Pocket019")
pocket20.Profile = sketch21
pocket20.Type = "UpToFirst"
pocket20.Reversed = True

sketch22 = body.newObject("Sketcher::SketchObject", "Sketch021")
sketch22.AttachmentSupport = (doc.getObject("XY_Plane"), [""])
sketch22.MapMode = "FlatFace"
sketch22.addGeometry([
    Part.LineSegment(V(48.5, 28, 0), V(48.5, 18, 0)),
    Part.LineSegment(V(48.5, 18, 0), V(45.5, 18, 0)),
    Part.LineSegment(V(45.5, 18, 0), V(45.5, 28, 0)),
    Part.LineSegment(V(45.5, 28, 0), V(48.5, 28, 0)),
], False)
sketch22.addConstraint([
    Sketcher.Constraint("Coincident", 0, 2, 1, 1),
    Sketcher.Constraint("Coincident", 1, 2, 2, 1),
    Sketcher.Constraint("Coincident", 2, 2, 3, 1),
    Sketcher.Constraint("Coincident", 3, 2, 0, 1),
    Sketcher.Constraint("Vertical", 0),
    Sketcher.Constraint("Horizontal", 1),
    Sketcher.Constraint("Vertical", 2),
    Sketcher.Constraint("Horizontal", 3),
    Sketcher.Constraint("DistanceX", 1, 2, 1, 1, 3.0),
    Sketcher.Constraint("DistanceY", 0, 2, 0, 1, 10.0),
    Sketcher.Constraint("DistanceY", -1, 1, 0, 2, 18.0),
    Sketcher.Constraint("DistanceX", -1, 1, 0, 2, 48.5),
])
sketch22.setExpression("Constraints[8]", "Params.sketch22_width")
sketch22.setExpression("Constraints[9]", "Params.sketch22_height")
pocket21 = body.newObject("PartDesign::Pocket", "Pocket020")
pocket21.Profile = sketch22
pocket21.Type = "UpToFirst"
pocket21.Reversed = True

sketch23 = body.newObject("Sketcher::SketchObject", "Sketch022")
sketch23.AttachmentSupport = (doc.getObject("XY_Plane"), [""])
sketch23.MapMode = "FlatFace"
sketch23.addGeometry([
    Part.LineSegment(V(48.5, 8, 0), V(48.5, -2, 0)),
    Part.LineSegment(V(48.5, -2, 0), V(45.5, -2, 0)),
    Part.LineSegment(V(45.5, -2, 0), V(45.5, 8, 0)),
    Part.LineSegment(V(45.5, 8, 0), V(48.5, 8, 0)),
], False)
sketch23.addConstraint([
    Sketcher.Constraint("Coincident", 0, 2, 1, 1),
    Sketcher.Constraint("Coincident", 1, 2, 2, 1),
    Sketcher.Constraint("Coincident", 2, 2, 3, 1),
    Sketcher.Constraint("Coincident", 3, 2, 0, 1),
    Sketcher.Constraint("Vertical", 0),
    Sketcher.Constraint("Horizontal", 1),
    Sketcher.Constraint("Vertical", 2),
    Sketcher.Constraint("Horizontal", 3),
    Sketcher.Constraint("DistanceX", 1, 2, 1, 1, 3.0),
    Sketcher.Constraint("DistanceY", 0, 2, 0, 1, 10.0),
    Sketcher.Constraint("DistanceY", 0, 2, -1, 1, 2.0),
    Sketcher.Constraint("DistanceX", -1, 1, 0, 2, 48.5),
])
sketch23.setExpression("Constraints[8]", "Params.sketch23_width")
sketch23.setExpression("Constraints[9]", "Params.sketch23_height")
pocket22 = body.newObject("PartDesign::Pocket", "Pocket021")
pocket22.Profile = sketch23
pocket22.Type = "UpToFirst"
pocket22.Reversed = True

sketch24 = body.newObject("Sketcher::SketchObject", "Sketch023")
sketch24.AttachmentSupport = (doc.getObject("XY_Plane"), [""])
sketch24.MapMode = "FlatFace"
sketch24.addGeometry([
    Part.LineSegment(V(-45.5, 8, 0), V(-45.5, -2, 0)),
    Part.LineSegment(V(-45.5, -2, 0), V(-48.5, -2, 0)),
    Part.LineSegment(V(-48.5, -2, 0), V(-48.5, 8, 0)),
    Part.LineSegment(V(-48.5, 8, 0), V(-45.5, 8, 0)),
], False)
sketch24.addConstraint([
    Sketcher.Constraint("Coincident", 0, 2, 1, 1),
    Sketcher.Constraint("Coincident", 1, 2, 2, 1),
    Sketcher.Constraint("Coincident", 2, 2, 3, 1),
    Sketcher.Constraint("Coincident", 3, 2, 0, 1),
    Sketcher.Constraint("Vertical", 0),
    Sketcher.Constraint("Horizontal", 1),
    Sketcher.Constraint("Vertical", 2),
    Sketcher.Constraint("Horizontal", 3),
    Sketcher.Constraint("DistanceX", 1, 2, 1, 1, 3.0),
    Sketcher.Constraint("DistanceY", 0, 2, 0, 1, 10.0),
    Sketcher.Constraint("DistanceY", 0, 2, -1, 1, 2.0),
    Sketcher.Constraint("DistanceX", 0, 2, -1, 1, 45.5),
])
sketch24.setExpression("Constraints[8]", "Params.sketch24_width")
sketch24.setExpression("Constraints[9]", "Params.sketch24_height")
pocket23 = body.newObject("PartDesign::Pocket", "Pocket022")
pocket23.Profile = sketch24
pocket23.Type = "UpToFirst"
pocket23.Reversed = True

doc.recompute()
